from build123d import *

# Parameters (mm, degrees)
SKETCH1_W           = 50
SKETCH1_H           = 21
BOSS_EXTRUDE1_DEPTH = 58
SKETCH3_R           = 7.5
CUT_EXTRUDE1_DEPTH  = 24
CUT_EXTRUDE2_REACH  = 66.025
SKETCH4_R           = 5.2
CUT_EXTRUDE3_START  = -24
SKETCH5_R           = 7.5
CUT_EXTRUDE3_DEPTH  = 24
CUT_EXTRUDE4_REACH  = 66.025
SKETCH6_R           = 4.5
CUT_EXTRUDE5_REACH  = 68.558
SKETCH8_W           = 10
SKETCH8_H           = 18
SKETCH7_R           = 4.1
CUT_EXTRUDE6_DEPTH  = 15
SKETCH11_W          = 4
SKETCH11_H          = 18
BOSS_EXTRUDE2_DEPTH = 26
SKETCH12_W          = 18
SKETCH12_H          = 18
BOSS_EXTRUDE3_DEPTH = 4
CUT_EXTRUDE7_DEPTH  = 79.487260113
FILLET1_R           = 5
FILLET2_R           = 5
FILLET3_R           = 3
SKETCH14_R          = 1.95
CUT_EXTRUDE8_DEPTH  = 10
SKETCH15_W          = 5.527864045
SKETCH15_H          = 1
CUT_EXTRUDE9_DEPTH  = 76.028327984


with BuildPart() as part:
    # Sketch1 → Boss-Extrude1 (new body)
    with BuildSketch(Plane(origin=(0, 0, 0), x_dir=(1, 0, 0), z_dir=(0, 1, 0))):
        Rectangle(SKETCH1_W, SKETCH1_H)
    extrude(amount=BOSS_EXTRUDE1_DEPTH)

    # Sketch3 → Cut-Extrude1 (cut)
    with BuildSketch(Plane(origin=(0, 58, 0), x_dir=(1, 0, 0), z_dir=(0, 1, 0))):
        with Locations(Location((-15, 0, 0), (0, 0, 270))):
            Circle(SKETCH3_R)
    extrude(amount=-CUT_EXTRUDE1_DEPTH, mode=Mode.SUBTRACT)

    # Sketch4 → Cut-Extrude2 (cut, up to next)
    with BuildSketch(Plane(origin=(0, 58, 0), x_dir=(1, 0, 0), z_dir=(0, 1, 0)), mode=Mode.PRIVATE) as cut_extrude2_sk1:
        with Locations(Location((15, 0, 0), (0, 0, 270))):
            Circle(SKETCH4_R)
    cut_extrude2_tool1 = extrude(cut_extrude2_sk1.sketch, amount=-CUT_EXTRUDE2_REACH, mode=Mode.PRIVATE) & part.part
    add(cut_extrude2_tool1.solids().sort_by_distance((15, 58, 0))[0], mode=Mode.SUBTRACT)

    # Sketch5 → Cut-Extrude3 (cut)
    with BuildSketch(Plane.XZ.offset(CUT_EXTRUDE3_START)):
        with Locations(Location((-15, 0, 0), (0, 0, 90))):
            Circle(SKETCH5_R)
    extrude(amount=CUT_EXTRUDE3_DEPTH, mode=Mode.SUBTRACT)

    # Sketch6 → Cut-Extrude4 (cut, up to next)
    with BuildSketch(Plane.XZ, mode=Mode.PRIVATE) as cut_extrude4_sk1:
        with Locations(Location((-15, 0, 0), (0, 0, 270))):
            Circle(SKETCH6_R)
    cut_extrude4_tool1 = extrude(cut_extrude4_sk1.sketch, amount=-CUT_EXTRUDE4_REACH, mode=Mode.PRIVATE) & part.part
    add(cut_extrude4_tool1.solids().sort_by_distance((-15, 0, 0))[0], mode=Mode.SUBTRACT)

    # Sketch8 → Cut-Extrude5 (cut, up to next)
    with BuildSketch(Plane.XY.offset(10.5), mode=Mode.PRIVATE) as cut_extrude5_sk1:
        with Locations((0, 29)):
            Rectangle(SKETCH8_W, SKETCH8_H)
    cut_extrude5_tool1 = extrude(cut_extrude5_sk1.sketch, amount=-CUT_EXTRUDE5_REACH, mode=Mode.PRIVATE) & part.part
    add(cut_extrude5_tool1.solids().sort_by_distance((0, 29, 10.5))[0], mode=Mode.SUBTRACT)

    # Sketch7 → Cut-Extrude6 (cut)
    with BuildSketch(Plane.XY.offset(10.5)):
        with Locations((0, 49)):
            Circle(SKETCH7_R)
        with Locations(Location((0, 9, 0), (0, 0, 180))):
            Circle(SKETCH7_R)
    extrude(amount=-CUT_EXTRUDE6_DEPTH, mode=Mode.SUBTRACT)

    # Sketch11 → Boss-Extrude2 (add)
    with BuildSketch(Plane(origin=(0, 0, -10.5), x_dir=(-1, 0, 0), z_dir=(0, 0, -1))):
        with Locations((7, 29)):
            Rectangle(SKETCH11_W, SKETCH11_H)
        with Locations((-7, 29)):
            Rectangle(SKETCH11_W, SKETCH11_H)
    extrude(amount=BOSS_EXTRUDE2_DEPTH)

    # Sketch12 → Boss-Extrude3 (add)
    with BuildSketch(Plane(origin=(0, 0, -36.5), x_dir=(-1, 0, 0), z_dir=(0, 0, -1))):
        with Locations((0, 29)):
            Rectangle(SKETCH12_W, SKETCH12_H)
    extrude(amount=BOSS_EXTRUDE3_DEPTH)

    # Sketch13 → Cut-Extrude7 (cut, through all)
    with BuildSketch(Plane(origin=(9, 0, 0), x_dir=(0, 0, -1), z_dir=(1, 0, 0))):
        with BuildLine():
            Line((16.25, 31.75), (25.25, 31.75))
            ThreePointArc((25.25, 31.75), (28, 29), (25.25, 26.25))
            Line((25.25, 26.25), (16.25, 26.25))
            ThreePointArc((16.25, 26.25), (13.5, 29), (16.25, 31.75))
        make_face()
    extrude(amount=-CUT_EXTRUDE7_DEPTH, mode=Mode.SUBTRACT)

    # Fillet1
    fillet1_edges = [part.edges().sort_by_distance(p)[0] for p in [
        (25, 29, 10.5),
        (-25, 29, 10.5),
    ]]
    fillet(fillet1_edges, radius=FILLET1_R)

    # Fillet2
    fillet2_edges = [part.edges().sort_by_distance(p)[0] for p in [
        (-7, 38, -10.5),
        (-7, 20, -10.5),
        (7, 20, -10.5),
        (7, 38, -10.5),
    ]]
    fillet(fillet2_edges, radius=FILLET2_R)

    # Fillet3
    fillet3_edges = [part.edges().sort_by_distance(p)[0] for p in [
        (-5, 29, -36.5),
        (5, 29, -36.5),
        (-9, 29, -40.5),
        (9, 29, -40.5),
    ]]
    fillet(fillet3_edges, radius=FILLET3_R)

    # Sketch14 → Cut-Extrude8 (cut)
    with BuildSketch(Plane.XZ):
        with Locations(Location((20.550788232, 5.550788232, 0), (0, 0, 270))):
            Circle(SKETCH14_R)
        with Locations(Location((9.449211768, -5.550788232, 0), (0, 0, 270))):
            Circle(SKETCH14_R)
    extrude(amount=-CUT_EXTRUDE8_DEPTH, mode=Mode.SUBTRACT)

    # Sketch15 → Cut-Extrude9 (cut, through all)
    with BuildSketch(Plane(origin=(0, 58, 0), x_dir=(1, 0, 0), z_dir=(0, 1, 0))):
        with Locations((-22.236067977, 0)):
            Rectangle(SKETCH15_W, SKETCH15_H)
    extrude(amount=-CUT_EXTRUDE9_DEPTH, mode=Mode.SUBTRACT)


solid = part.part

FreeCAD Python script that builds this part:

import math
import FreeCAD as App
import Part
import Sketcher
Q = App.Units.Quantity


def edges_at(feature, points):
    """Names of the edges that pass closest to the given points."""
    edges = feature.Shape.Edges
    near = lambda p: min(range(len(edges)), key=lambda i: edges[i].distToShape(Part.Vertex(*p))[0])
    return sorted({f"Edge{near(p) + 1}" for p in points})

doc = App.newDocument("Part")
body = doc.addObject("PartDesign::Body", "Body")

sketch1 = body.newObject("Sketcher::SketchObject", "Sketch")
sketch1.AttachmentSupport = (doc.getObject("XZ_Plane"), [""])
sketch1.MapMode = "FlatFace"
sketch1.addGeometry(Part.LineSegment(App.Vector(-25, -10, 0), App.Vector(-25, 10, 0)), False)
sketch1.addGeometry(Part.LineSegment(App.Vector(-25, 10, 0), App.Vector(25, 10, 0)), False)
sketch1.addGeometry(Part.LineSegment(App.Vector(25, 10, 0), App.Vector(25, -10, 0)), False)
sketch1.addGeometry(Part.LineSegment(App.Vector(25, -10, 0), App.Vector(-25, -10, 0)), False)
sketch1.addConstraint(Sketcher.Constraint("Coincident", 0, 2, 1, 1))
sketch1.addConstraint(Sketcher.Constraint("Coincident", 1, 2, 2, 1))
sketch1.addConstraint(Sketcher.Constraint("Coincident", 2, 2, 3, 1))
sketch1.addConstraint(Sketcher.Constraint("Coincident", 3, 2, 0, 1))
sketch1.addConstraint(Sketcher.Constraint("Vertical", 0))
sketch1.addConstraint(Sketcher.Constraint("Horizontal", 1))
sketch1.addConstraint(Sketcher.Constraint("Vertical", 2))
sketch1.addConstraint(Sketcher.Constraint("Horizontal", 3))
sketch1.addConstraint(Sketcher.Constraint("Symmetric", 0, 2, 2, 2, -1, 1))
sketch1.addConstraint(Sketcher.Constraint("DistanceX", 1, 1, 1, 2, Q("50 mm")))
sketch1.addConstraint(Sketcher.Constraint("DistanceY", 0, 1, 0, 2, Q("21 mm")))
pad1 = body.newObject("PartDesign::Pad", "Pad")
pad1.Profile = sketch1
pad1.Length = 58
pad1.Reversed = True

sketch2 = body.newObject("Sketcher::SketchObject", "Sketch001")
sketch2.AttachmentSupport = (doc.getObject("XZ_Plane"), [""])
sketch2.MapMode = "FlatFace"
sketch2.AttachmentOffset = App.Placement(App.Vector(0, 0, -58), App.Rotation())
sketch2.addGeometry(Part.Circle(App.Vector(-15, 0, 0), App.Vector(0, 0, 1), 8), False)
sketch2.addConstraint(Sketcher.Constraint("PointOnObject", 0, 3, -1))
sketch2.addConstraint(Sketcher.Constraint("Diameter", 0, Q("15 mm")))
sketch2.addConstraint(Sketcher.Constraint("DistanceX", 0, 3, -1, 1, Q("15 mm")))
pocket1 = body.newObject("PartDesign::Pocket", "Pocket")
pocket1.Profile = sketch2
pocket1.Length = 24
pocket1.Reversed = True

sketch3 = body.newObject("Sketcher::SketchObject", "Sketch002")
sketch3.AttachmentSupport = (doc.getObject("XZ_Plane"), [""])
sketch3.MapMode = "FlatFace"
sketch3.AttachmentOffset = App.Placement(App.Vector(0, 0, -58), App.Rotation())
sketch3.addGeometry(Part.Circle(App.Vector(15, 0, 0), App.Vector(0, 0, 1), 5), False)
sketch3.addConstraint(Sketcher.Constraint("PointOnObject", 0, 3, -1))
sketch3.addConstraint(Sketcher.Constraint("Diameter", 0, Q("10.4 mm")))
sketch3.addConstraint(Sketcher.Constraint("DistanceX", -1, 1, 0, 3, Q("15 mm")))
pocket2 = body.newObject("PartDesign::Pocket", "Pocket001")
pocket2.Profile = sketch3
pocket2.Type = "UpToFirst"
pocket2.Reversed = True

sketch4 = body.newObject("Sketcher::SketchObject", "Sketch003")
sketch4.AttachmentSupport = (doc.getObject("XZ_Plane"), [""])
sketch4.MapMode = "FlatFace"
sketch4.AttachmentOffset = App.Placement(App.Vector(0, 0, -24), App.Rotation())
sketch4.addGeometry(Part.Circle(App.Vector(-15, 0, 0), App.Vector(0, 0, 1), 8), False)
sketch4.addConstraint(Sketcher.Constraint("PointOnObject", 0, 3, -1))
sketch4.addConstraint(Sketcher.Constraint("Diameter", 0, Q("15 mm")))
sketch4.addConstraint(Sketcher.Constraint("DistanceX", 0, 3, -1, 1, Q("15 mm")))
pocket3 = body.newObject("PartDesign::Pocket", "Pocket002")
pocket3.Profile = sketch4
pocket3.Length = 24
pocket3.Reversed = True

sketch5 = body.newObject("Sketcher::SketchObject", "Sketch004")
sketch5.AttachmentSupport = (doc.getObject("XZ_Plane"), [""])
sketch5.MapMode = "FlatFace"
sketch5.addGeometry(Part.Circle(App.Vector(-15, 0, 0), App.Vector(0, 0, 1), 4.5), False)
sketch5.addConstraint(Sketcher.Constraint("PointOnObject", 0, 3, -1))
sketch5.addConstraint(Sketcher.Constraint("Diameter", 0, Q("9 mm")))
sketch5.addConstraint(Sketcher.Constraint("DistanceX", 0, 3, -1, 1, Q("15 mm")))
pocket4 = body.newObject("PartDesign::Pocket", "Pocket003")
pocket4.Profile = sketch5
pocket4.Length = 34

sketch6 = body.newObject("Sketcher::SketchObject", "Sketch005")
sketch6.AttachmentSupport = (doc.getObject("XY_Plane"), [""])
sketch6.MapMode = "FlatFace"
sketch6.AttachmentOffset = App.Placement(App.Vector(0, 0, 10.5), App.Rotation())
sketch6.addGeometry(Part.LineSegment(App.Vector(-5, 38, 0), App.Vector(-5, 20, 0)), False)
sketch6.addGeometry(Part.LineSegment(App.Vector(-5, 20, 0), App.Vector(5, 20, 0)), False)
sketch6.addGeometry(Part.LineSegment(App.Vector(5, 20, 0), App.Vector(5, 38, 0)), False)
sketch6.addGeometry(Part.LineSegment(App.Vector(5, 38, 0), App.Vector(-5, 38, 0)), False)
sketch6.addConstraint(Sketcher.Constraint("Coincident", 0, 2, 1, 1))
sketch6.addConstraint(Sketcher.Constraint("Coincident", 1, 2, 2, 1))
sketch6.addConstraint(Sketcher.Constraint("Coincident", 2, 2, 3, 1))
sketch6.addConstraint(Sketcher.Constraint("Coincident", 3, 2, 0, 1))
sketch6.addConstraint(Sketcher.Constraint("Vertical", 0))
sketch6.addConstraint(Sketcher.Constraint("Horizontal", 1))
sketch6.addConstraint(Sketcher.Constraint("Vertical", 2))
sketch6.addConstraint(Sketcher.Constraint("Horizontal", 3))
sketch6.addConstraint(Sketcher.Constraint("DistanceX", 1, 1, 1, 2, Q("10 mm")))
sketch6.addConstraint(Sketcher.Constraint("DistanceY", 0, 2, 0, 1, Q("18 mm")))
sketch6.addConstraint(Sketcher.Constraint("DistanceX", 0, 2, -1, 1, Q("5 mm")))
sketch6.addConstraint(Sketcher.Constraint("DistanceY", -1, 1, 0, 2, Q("20 mm")))
pocket5 = body.newObject("PartDesign::Pocket", "Pocket004")
pocket5.Profile = sketch6
pocket5.Type = "UpToFirst"

sketch7 = body.newObject("Sketcher::SketchObject", "Sketch006")
sketch7.AttachmentSupport = (doc.getObject("XY_Plane"), [""])
sketch7.MapMode = "FlatFace"
sketch7.AttachmentOffset = App.Placement(App.Vector(0, 0, 10.5), App.Rotation())
sketch7.addGeometry(Part.Circle(App.Vector(0, 49, 0), App.Vector(0, 0, 1), 4.1), False)
sketch7.addGeometry(Part.Circle(App.Vector(0, 9, 0), App.Vector(0, 0, 1), 4.1), False)
sketch7.addConstraint(Sketcher.Constraint("Equal", 0, 1))
sketch7.addConstraint(Sketcher.Constraint("PointOnObject", 0, 3, -2))
sketch7.addConstraint(Sketcher.Constraint("PointOnObject", 1, 3, -2))
sketch7.addConstraint(Sketcher.Constraint("Diameter", 0, Q("8.2 mm")))
sketch7.addConstraint(Sketcher.Constraint("DistanceY", -1, 1, 0, 3, Q("49 mm")))
sketch7.addConstraint(Sketcher.Constraint("DistanceY", -1, 1, 1, 3, Q("9 mm")))
pocket6 = body.newObject("PartDesign::Pocket", "Pocket005")
pocket6.Profile = sketch7
pocket6.Length = 15

sketch8 = body.newObject("Sketcher::SketchObject", "Sketch007")
sketch8.AttachmentSupport = (doc.getObject("XY_Plane"), [""])
sketch8.MapMode = "FlatFace"
sketch8.AttachmentOffset = App.Placement(App.Vector(0, 0, -10.5), App.Rotation())
sketch8.addGeometry(Part.LineSegment(App.Vector(-5, 38, 0), App.Vector(-5, 20, 0)), False)
sketch8.addGeometry(Part.LineSegment(App.Vector(-5, 20, 0), App.Vector(-9, 20, 0)), False)
sketch8.addGeometry(Part.LineSegment(App.Vector(-9, 20, 0), App.Vector(-9, 38, 0)), False)
sketch8.addGeometry(Part.LineSegment(App.Vector(-9, 38, 0), App.Vector(-5, 38, 0)), False)
sketch8.addGeometry(Part.LineSegment(App.Vector(9, 38, 0), App.Vector(9, 20, 0)), False)
sketch8.addGeometry(Part.LineSegment(App.Vector(9, 20, 0), App.Vector(5, 20, 0)), False)
sketch8.addGeometry(Part.LineSegment(App.Vector(5, 20, 0), App.Vector(5, 38, 0)), False)
sketch8.addGeometry(Part.LineSegment(App.Vector(5, 38, 0), App.Vector(9, 38, 0)), False)
sketch8.addConstraint(Sketcher.Constraint("Coincident", 0, 2, 1, 1))
sketch8.addConstraint(Sketcher.Constraint("Coincident", 1, 2, 2, 1))
sketch8.addConstraint(Sketcher.Constraint("Coincident", 2, 2, 3, 1))
sketch8.addConstraint(Sketcher.Constraint("Coincident", 3, 2, 0, 1))
sketch8.addConstraint(Sketcher.Constraint("Coincident", 4, 2, 5, 1))
sketch8.addConstraint(Sketcher.Constraint("Coincident", 5, 2, 6, 1))
sketch8.addConstraint(Sketcher.Constraint("Coincident", 6, 2, 7, 1))
sketch8.addConstraint(Sketcher.Constraint("Coincident", 7, 2, 4, 1))
sketch8.addConstraint(Sketcher.Constraint("Vertical", 0))
sketch8.addConstraint(Sketcher.Constraint("Horizontal", 1))
sketch8.addConstraint(Sketcher.Constraint("Vertical", 2))
sketch8.addConstraint(Sketcher.Constraint("Horizontal", 3))
sketch8.addConstraint(Sketcher.Constraint("Vertical", 4))
sketch8.addConstraint(Sketcher.Constraint("Horizontal", 5))
sketch8.addConstraint(Sketcher.Constraint("Vertical", 6))
sketch8.addConstraint(Sketcher.Constraint("Horizontal", 7))
sketch8.addConstraint(Sketcher.Constraint("Symmetric", 1, 2, 4, 2, -2))
sketch8.addConstraint(Sketcher.Constraint("Symmetric", 3, 2, 6, 2, -2))
sketch8.addConstraint(Sketcher.Constraint("DistanceX", 1, 2, 1, 1, Q("4 mm")))
sketch8.addConstraint(Sketcher.Constraint("DistanceY", 0, 2, 0, 1, Q("18 mm")))
sketch8.addConstraint(Sketcher.Constraint("DistanceX", 0, 2, -1, 1, Q("5 mm")))
sketch8.addConstraint(Sketcher.Constraint("DistanceY", -1, 1, 0, 2, Q("20 mm")))
pad2 = body.newObject("PartDesign::Pad", "Pad001")
pad2.Profile = sketch8
pad2.Length = 26
pad2.Reversed = True

sketch9 = body.newObject("Sketcher::SketchObject", "Sketch008")
sketch9.AttachmentSupport = (doc.getObject("XY_Plane"), [""])
sketch9.MapMode = "FlatFace"
sketch9.AttachmentOffset = App.Placement(App.Vector(0, 0, -36.5), App.Rotation())
sketch9.addGeometry(Part.LineSegment(App.Vector(9, 38, 0), App.Vector(9, 20, 0)), False)
sketch9.addGeometry(Part.LineSegment(App.Vector(9, 20, 0), App.Vector(-9, 20, 0)), False)
sketch9.addGeometry(Part.LineSegment(App.Vector(-9, 20, 0), App.Vector(-9, 38, 0)), False)
sketch9.addGeometry(Part.LineSegment(App.Vector(-9, 38, 0), App.Vector(9, 38, 0)), False)
sketch9.addConstraint(Sketcher.Constraint("Coincident", 0, 2, 1, 1))
sketch9.addConstraint(Sketcher.Constraint("Coincident", 1, 2, 2, 1))
sketch9.addConstraint(Sketcher.Constraint("Coincident", 2, 2, 3, 1))
sketch9.addConstraint(Sketcher.Constraint("Coincident", 3, 2, 0, 1))
sketch9.addConstraint(Sketcher.Constraint("Vertical", 0))
sketch9.addConstraint(Sketcher.Constraint("Horizontal", 1))
sketch9.addConstraint(Sketcher.Constraint("Vertical", 2))
sketch9.addConstraint(Sketcher.Constraint("Horizontal", 3))
sketch9.addConstraint(Sketcher.Constraint("Equal", 3, 0))
sketch9.addConstraint(Sketcher.Constraint("DistanceX", 1, 2, 1, 1, Q("18 mm")))
sketch9.addConstraint(Sketcher.Constraint("DistanceX", -1, 1, 0, 2, Q("9 mm")))
sketch9.addConstraint(Sketcher.Constraint("DistanceY", -1, 1, 0, 2, Q("20 mm")))
pad3 = body.newObject("PartDesign::Pad", "Pad002")
pad3.Profile = sketch9
pad3.Length = 4
pad3.Reversed = True

sketch10 = body.newObject("Sketcher::SketchObject", "Sketch009")
sketch10.AttachmentSupport = (doc.getObject("YZ_Plane"), [""])
sketch10.MapMode = "FlatFace"
sketch10.AttachmentOffset = App.Placement(App.Vector(0, 0, 9), App.Rotation())
sketch10.addGeometry(Part.LineSegment(App.Vector(31.8, -25.2, 0), App.Vector(31.8, -16.2, 0)), False)
sketch10.addGeometry(Part.ArcOfCircle(Part.Circle(App.Vector(29, -16.2, 0), App.Vector(0, 0, 1), 2.8), math.radians(0), math.radians(180)), False)
sketch10.addGeometry(Part.LineSegment(App.Vector(26.2, -16.2, 0), App.Vector(26.2, -25.2, 0)), False)
sketch10.addGeometry(Part.ArcOfCircle(Part.Circle(App.Vector(29, -25.2, 0), App.Vector(0, 0, 1), 2.8), math.radians(180), math.radians(360)), False)
sketch10.addConstraint(Sketcher.Constraint("Tangent", 0, 2, 1, 1))
sketch10.addConstraint(Sketcher.Constraint("Tangent", 1, 2, 2, 1))
sketch10.addConstraint(Sketcher.Constraint("Tangent", 2, 2, 3, 1))
sketch10.addConstraint(Sketcher.Constraint("Tangent", 3, 2, 0, 1))
sketch10.addConstraint(Sketcher.Constraint("Vertical", 0))
sketch10.addConstraint(Sketcher.Constraint("Vertical", 2))
sketch10.addConstraint(Sketcher.Constraint("DistanceY", 0, 1, 0, 2, Q("9 mm")))
sketch10.addConstraint(Sketcher.Constraint("Radius", 1, Q("2.75 mm")))
sketch10.addConstraint(Sketcher.Constraint("DistanceX", -1, 1, 1, 3, Q("29 mm")))
sketch10.addConstraint(Sketcher.Constraint("DistanceY", 1, 3, -1, 1, Q("16.25 mm")))
pocket7 = body.newObject("PartDesign::Pocket", "Pocket006")
pocket7.Profile = sketch10
pocket7.Type = "ThroughAll"
doc.recompute()

fillet = body.newObject("PartDesign::Fillet", "Fillet")
fillet.Base = (pocket7, edges_at(pocket7, [(25, 29, 10.5), (-25, 29, 10.5)]))
fillet.Radius = 5
doc.recompute()

fillet2 = body.newObject("PartDesign::Fillet", "Fillet001")
fillet2.Base = (fillet, edges_at(fillet, [
    (-7, 38, -10.5),
    (-7, 20, -10.5),
    (7, 20, -10.5),
    (7, 38, -10.5),
]))
fillet2.Radius = 5
doc.recompute()

fillet3 = body.newObject("PartDesign::Fillet", "Fillet002")
fillet3.Base = (fillet2, edges_at(fillet2, [
    (-5, 29, -36.5),
    (5, 29, -36.5),
    (-9, 29, -40.5),
    (9, 29, -40.5),
]))
fillet3.Radius = 3

sketch11 = body.newObject("Sketcher::SketchObject", "Sketch010")
sketch11.AttachmentSupport = (doc.getObject("XZ_Plane"), [""])
sketch11.MapMode = "FlatFace"
sketch11.addGeometry(Part.Circle(App.Vector(20.6, 5.6, 0), App.Vector(0, 0, 1), 1.9), False)
sketch11.addGeometry(Part.Circle(App.Vector(9.4, -5.6, 0), App.Vector(0, 0, 1), 1.9), False)
sketch11.addConstraint(Sketcher.Constraint("Equal", 0, 1))
sketch11.addConstraint(Sketcher.Constraint("Diameter", 0, Q("3.9 mm")))
sketch11.addConstraint(Sketcher.Constraint("DistanceX", -1, 1, 0, 3, Q("20.550788 mm")))
sketch11.addConstraint(Sketcher.Constraint("DistanceY", -1, 1, 0, 3, Q("5.550788 mm")))
sketch11.addConstraint(Sketcher.Constraint("DistanceX", -1, 1, 1, 3, Q("9.449212 mm")))
sketch11.addConstraint(Sketcher.Constraint("DistanceY", 1, 3, -1, 1, Q("5.550788 mm")))
pocket8 = body.newObject("PartDesign::Pocket", "Pocket007")
pocket8.Profile = sketch11
pocket8.Length = 10

sketch12 = body.newObject("Sketcher::SketchObject", "Sketch011")
sketch12.AttachmentSupport = (doc.getObject("XZ_Plane"), [""])
sketch12.MapMode = "FlatFace"
sketch12.AttachmentOffset = App.Placement(App.Vector(0, 0, -58), App.Rotation())
sketch12.addGeometry(Part.LineSegment(App.Vector(-25, -0.5, 0), App.Vector(-25, 0.5, 0)), False)
sketch12.addGeometry(Part.LineSegment(App.Vector(-25, 0.5, 0), App.Vector(-19.5, 0.5, 0)), False)
sketch12.addGeometry(Part.LineSegment(App.Vector(-19.5, 0.5, 0), App.Vector(-19.5, -0.5, 0)), False)
sketch12.addGeometry(Part.LineSegment(App.Vector(-19.5, -0.5, 0), App.Vector(-25, -0.5, 0)), False)
sketch12.addConstraint(Sketcher.Constraint("Coincident", 0, 2, 1, 1))
sketch12.addConstraint(Sketcher.Constraint("Coincident", 1, 2, 2, 1))
sketch12.addConstraint(Sketcher.Constraint("Coincident", 2, 2, 3, 1))
sketch12.addConstraint(Sketcher.Constraint("Coincident", 3, 2, 0, 1))
sketch12.addConstraint(Sketcher.Constraint("Vertical", 0))
sketch12.addConstraint(Sketcher.Constraint("Horizontal", 1))
sketch12.addConstraint(Sketcher.Constraint("Vertical", 2))
sketch12.addConstraint(Sketcher.Constraint("Horizontal", 3))
sketch12.addConstraint(Sketcher.Constraint("DistanceY", 0, 1, 0, 2, Q("1 mm")))
sketch12.addConstraint(Sketcher.Constraint("DistanceX", 0, 2, -1, 1, Q("25 mm")))
sketch12.addConstraint(Sketcher.Constraint("DistanceY", -1, 1, 0, 2, Q("0.5 mm")))
sketch12.addConstraint(Sketcher.Constraint("DistanceX", 1, 1, 1, 2, Q("5.527864 mm")))
pocket9 = body.newObject("PartDesign::Pocket", "Pocket008")
pocket9.Profile = sketch12
pocket9.Type = "ThroughAll"
pocket9.Reversed = True

doc.recompute()
